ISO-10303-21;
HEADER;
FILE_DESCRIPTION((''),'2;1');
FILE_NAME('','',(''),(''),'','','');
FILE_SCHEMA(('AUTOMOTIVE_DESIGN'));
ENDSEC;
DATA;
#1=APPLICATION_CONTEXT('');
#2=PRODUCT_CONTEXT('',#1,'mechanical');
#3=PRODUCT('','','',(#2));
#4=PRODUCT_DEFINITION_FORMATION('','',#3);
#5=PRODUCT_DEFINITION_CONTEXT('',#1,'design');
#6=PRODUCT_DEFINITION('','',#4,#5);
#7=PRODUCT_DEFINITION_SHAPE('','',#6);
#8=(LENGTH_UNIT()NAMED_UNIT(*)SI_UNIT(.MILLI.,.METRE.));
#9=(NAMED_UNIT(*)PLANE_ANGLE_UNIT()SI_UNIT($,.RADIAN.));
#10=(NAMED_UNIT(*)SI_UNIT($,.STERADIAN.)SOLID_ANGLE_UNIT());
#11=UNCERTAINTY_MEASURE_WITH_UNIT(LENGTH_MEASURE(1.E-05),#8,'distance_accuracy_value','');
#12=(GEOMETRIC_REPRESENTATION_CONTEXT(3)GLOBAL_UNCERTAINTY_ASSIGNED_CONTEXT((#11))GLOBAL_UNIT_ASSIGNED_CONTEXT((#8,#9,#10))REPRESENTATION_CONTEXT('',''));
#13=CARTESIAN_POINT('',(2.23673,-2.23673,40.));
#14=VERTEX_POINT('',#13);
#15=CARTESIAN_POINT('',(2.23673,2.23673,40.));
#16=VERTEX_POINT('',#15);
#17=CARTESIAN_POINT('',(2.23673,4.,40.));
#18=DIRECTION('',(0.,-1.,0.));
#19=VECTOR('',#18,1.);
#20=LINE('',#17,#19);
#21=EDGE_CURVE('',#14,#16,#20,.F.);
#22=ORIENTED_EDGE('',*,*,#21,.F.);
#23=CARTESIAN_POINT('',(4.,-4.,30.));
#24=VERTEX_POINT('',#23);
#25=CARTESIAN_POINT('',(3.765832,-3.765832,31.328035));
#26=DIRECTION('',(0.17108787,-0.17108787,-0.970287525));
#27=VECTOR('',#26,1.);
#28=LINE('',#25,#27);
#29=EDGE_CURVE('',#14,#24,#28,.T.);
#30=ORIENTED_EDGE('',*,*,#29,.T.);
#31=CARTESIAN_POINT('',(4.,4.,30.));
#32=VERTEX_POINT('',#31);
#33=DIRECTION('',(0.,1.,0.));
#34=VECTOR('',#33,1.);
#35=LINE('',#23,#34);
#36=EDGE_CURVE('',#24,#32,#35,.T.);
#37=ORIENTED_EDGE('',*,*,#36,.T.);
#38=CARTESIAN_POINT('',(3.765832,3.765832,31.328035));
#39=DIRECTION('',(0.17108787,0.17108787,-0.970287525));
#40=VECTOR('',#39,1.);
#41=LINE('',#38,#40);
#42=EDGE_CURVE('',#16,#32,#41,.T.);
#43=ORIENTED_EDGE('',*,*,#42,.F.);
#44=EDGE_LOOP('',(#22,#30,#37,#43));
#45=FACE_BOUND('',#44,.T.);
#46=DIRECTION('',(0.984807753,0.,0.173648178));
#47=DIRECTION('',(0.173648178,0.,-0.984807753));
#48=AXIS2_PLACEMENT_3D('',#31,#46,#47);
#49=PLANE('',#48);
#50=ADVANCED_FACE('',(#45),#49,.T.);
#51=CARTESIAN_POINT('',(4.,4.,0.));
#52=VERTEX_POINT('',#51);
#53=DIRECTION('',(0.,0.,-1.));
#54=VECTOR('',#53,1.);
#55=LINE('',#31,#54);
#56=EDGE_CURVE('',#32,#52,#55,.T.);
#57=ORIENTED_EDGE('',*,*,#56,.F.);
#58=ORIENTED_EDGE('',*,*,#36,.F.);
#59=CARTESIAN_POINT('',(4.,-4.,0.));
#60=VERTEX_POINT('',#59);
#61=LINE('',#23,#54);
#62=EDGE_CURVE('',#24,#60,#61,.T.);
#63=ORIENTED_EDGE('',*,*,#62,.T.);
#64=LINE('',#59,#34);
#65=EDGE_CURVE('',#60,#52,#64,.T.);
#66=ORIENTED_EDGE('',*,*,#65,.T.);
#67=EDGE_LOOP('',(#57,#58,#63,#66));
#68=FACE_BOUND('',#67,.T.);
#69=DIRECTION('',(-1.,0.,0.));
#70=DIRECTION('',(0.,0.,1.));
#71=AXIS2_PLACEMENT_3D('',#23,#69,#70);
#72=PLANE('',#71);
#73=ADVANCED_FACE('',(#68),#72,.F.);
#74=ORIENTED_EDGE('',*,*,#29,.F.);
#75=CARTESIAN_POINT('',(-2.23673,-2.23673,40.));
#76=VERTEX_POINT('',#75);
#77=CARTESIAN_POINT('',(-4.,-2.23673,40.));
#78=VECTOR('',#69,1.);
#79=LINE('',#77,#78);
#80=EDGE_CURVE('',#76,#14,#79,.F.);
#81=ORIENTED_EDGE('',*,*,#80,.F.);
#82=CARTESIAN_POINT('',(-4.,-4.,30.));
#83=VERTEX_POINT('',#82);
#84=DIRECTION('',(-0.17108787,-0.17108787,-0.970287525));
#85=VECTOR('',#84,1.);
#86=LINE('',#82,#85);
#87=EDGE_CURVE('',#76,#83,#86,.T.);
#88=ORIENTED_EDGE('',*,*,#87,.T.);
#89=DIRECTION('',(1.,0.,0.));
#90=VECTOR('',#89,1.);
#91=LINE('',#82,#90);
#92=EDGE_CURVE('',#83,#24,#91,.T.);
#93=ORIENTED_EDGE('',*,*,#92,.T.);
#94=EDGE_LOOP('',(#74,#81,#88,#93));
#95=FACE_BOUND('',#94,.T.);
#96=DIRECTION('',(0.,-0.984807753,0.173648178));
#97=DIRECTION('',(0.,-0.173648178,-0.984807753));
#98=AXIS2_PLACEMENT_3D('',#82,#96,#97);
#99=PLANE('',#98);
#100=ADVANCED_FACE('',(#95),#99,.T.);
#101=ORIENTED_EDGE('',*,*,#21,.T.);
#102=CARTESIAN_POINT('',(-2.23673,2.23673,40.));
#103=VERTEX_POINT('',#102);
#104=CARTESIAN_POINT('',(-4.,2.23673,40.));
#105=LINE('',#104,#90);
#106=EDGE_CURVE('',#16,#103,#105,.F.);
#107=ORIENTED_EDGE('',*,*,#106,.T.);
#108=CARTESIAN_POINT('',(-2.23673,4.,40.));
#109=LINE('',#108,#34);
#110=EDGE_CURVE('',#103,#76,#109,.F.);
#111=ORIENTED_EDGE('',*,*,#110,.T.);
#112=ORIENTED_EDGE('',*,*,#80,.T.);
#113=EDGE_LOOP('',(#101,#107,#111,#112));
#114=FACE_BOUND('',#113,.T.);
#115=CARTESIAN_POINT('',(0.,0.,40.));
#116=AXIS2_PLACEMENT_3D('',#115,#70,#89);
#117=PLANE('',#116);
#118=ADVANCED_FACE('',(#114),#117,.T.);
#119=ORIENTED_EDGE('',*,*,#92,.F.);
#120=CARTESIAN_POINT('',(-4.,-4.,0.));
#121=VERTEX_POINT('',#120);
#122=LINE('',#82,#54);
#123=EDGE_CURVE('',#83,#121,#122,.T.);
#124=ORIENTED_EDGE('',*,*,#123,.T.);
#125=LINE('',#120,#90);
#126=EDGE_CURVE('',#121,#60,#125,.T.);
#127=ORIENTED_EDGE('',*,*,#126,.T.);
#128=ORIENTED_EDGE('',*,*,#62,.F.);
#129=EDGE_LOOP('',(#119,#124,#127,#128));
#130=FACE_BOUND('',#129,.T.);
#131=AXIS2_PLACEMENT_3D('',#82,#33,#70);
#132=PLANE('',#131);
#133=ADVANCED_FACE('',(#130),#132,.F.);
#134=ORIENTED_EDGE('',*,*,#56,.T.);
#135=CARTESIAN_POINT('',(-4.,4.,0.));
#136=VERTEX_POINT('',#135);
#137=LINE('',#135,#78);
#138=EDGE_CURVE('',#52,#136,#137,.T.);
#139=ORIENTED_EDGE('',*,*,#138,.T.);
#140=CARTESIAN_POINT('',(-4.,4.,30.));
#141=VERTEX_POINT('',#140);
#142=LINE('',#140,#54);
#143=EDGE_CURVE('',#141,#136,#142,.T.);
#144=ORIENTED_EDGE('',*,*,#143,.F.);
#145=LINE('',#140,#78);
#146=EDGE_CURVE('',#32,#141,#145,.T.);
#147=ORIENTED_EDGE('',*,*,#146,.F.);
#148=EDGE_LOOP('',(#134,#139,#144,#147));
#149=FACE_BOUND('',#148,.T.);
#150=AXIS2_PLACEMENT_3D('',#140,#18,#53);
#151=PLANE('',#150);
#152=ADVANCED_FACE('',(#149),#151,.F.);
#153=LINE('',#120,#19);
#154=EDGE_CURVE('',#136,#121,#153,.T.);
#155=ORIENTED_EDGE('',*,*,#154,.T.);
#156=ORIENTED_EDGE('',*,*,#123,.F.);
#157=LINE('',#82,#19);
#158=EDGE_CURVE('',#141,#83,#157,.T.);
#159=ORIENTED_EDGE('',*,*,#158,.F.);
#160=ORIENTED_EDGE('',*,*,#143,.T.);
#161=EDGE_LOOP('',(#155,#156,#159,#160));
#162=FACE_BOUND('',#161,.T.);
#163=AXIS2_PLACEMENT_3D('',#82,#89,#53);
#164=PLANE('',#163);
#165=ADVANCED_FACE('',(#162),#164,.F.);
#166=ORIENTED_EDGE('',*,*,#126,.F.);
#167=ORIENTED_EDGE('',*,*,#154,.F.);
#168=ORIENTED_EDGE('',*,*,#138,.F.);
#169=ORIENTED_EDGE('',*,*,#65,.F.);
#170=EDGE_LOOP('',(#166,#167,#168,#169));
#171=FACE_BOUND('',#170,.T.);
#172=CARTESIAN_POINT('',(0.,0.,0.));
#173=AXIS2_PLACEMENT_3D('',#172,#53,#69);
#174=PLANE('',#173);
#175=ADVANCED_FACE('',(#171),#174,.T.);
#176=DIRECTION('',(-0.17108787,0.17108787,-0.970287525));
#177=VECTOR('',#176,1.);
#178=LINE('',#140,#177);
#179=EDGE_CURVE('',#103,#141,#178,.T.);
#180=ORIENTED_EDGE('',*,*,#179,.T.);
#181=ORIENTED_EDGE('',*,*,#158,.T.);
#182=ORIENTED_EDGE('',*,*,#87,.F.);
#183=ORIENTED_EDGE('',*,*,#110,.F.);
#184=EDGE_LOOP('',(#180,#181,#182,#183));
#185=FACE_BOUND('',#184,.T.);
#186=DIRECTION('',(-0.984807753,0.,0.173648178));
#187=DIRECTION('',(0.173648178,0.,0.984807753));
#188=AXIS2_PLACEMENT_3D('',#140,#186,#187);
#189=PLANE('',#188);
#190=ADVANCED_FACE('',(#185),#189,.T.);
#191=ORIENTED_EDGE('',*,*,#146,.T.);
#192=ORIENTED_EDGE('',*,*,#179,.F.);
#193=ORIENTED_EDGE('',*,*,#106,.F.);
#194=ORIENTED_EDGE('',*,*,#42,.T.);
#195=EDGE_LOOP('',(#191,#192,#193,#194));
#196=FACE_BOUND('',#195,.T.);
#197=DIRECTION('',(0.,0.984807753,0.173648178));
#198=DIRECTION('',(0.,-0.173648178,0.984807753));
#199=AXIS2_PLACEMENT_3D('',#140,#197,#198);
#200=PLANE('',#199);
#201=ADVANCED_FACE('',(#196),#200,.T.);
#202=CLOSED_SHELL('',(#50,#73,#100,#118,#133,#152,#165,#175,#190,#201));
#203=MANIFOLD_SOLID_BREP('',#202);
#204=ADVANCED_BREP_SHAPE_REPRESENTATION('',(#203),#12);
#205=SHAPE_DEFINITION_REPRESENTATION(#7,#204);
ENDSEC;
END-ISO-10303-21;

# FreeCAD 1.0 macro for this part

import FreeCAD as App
import Part
import Sketcher
Q = App.Units.Quantity


def add_polygon(sketch, points):
    """Adds a closed chain of lines whose ends are joined by coincident constraints."""
    first, n = sketch.GeometryCount, len(points)
    for a, b in zip(points, points[1:] + points[:1]):
        sketch.addGeometry(Part.LineSegment(App.Vector(*a, 0), App.Vector(*b, 0)), False)
    for i in range(n):
        sketch.addConstraint(Sketcher.Constraint("Coincident", first + i, 2, first + (i + 1) % n, 1))

doc = App.newDocument("Part")
body = doc.addObject("PartDesign::Body", "Body")

# Sketch on XY plane
sketch1 = doc.addObject("Sketcher::SketchObject", "Sketch")
body.addObject(sketch1)
sketch1.AttachmentSupport = (doc.XY_Plane, [""])
sketch1.MapMode = "FlatFace"
add_polygon(sketch1, [(-4, 4), (-4, -4), (4, -4), (4, 4)])  # lines 0-3
sketch1.addConstraint([
    Sketcher.Constraint("Vertical", 0),
    Sketcher.Constraint("Horizontal", 1),
    Sketcher.Constraint("Vertical", 2),
    Sketcher.Constraint("Horizontal", 3),
    Sketcher.Constraint("Symmetric", 0, 2, 2, 2, -1, 1),
    Sketcher.Constraint("Equal", 3, 0),
    Sketcher.Constraint("DistanceX", 1, 1, 1, 2, Q("8 mm")),
])
pad1 = doc.addObject("PartDesign::Pad", "Pad")
body.addObject(pad1)
pad1.Profile = sketch1
pad1.Length = 30

# Sketch on XY plane
sketch2 = doc.addObject("Sketcher::SketchObject", "Sketch001")
body.addObject(sketch2)
sketch2.AttachmentSupport = (doc.XY_Plane, [""])
sketch2.MapMode = "FlatFace"
sketch2.AttachmentOffset = App.Placement(App.Vector(0, 0, 30), App.Rotation())
add_polygon(sketch2, [(-4, 4), (-4, -4), (4, -4), (4, 4)])  # lines 0-3
sketch2.addConstraint([
    Sketcher.Constraint("Vertical", 0),
    Sketcher.Constraint("Horizontal", 1),
    Sketcher.Constraint("Vertical", 2),
    Sketcher.Constraint("Horizontal", 3),
    Sketcher.Constraint("Symmetric", 0, 2, 2, 2, -1, 1),
    Sketcher.Constraint("Equal", 3, 0),
    Sketcher.Constraint("DistanceX", 1, 1, 1, 2, Q("8 mm")),
])
pad2 = doc.addObject("PartDesign::Pad", "Pad001")
body.addObject(pad2)
pad2.Profile = sketch2
pad2.Length = 10
pad2.TaperAngle = -10

doc.recompute()
